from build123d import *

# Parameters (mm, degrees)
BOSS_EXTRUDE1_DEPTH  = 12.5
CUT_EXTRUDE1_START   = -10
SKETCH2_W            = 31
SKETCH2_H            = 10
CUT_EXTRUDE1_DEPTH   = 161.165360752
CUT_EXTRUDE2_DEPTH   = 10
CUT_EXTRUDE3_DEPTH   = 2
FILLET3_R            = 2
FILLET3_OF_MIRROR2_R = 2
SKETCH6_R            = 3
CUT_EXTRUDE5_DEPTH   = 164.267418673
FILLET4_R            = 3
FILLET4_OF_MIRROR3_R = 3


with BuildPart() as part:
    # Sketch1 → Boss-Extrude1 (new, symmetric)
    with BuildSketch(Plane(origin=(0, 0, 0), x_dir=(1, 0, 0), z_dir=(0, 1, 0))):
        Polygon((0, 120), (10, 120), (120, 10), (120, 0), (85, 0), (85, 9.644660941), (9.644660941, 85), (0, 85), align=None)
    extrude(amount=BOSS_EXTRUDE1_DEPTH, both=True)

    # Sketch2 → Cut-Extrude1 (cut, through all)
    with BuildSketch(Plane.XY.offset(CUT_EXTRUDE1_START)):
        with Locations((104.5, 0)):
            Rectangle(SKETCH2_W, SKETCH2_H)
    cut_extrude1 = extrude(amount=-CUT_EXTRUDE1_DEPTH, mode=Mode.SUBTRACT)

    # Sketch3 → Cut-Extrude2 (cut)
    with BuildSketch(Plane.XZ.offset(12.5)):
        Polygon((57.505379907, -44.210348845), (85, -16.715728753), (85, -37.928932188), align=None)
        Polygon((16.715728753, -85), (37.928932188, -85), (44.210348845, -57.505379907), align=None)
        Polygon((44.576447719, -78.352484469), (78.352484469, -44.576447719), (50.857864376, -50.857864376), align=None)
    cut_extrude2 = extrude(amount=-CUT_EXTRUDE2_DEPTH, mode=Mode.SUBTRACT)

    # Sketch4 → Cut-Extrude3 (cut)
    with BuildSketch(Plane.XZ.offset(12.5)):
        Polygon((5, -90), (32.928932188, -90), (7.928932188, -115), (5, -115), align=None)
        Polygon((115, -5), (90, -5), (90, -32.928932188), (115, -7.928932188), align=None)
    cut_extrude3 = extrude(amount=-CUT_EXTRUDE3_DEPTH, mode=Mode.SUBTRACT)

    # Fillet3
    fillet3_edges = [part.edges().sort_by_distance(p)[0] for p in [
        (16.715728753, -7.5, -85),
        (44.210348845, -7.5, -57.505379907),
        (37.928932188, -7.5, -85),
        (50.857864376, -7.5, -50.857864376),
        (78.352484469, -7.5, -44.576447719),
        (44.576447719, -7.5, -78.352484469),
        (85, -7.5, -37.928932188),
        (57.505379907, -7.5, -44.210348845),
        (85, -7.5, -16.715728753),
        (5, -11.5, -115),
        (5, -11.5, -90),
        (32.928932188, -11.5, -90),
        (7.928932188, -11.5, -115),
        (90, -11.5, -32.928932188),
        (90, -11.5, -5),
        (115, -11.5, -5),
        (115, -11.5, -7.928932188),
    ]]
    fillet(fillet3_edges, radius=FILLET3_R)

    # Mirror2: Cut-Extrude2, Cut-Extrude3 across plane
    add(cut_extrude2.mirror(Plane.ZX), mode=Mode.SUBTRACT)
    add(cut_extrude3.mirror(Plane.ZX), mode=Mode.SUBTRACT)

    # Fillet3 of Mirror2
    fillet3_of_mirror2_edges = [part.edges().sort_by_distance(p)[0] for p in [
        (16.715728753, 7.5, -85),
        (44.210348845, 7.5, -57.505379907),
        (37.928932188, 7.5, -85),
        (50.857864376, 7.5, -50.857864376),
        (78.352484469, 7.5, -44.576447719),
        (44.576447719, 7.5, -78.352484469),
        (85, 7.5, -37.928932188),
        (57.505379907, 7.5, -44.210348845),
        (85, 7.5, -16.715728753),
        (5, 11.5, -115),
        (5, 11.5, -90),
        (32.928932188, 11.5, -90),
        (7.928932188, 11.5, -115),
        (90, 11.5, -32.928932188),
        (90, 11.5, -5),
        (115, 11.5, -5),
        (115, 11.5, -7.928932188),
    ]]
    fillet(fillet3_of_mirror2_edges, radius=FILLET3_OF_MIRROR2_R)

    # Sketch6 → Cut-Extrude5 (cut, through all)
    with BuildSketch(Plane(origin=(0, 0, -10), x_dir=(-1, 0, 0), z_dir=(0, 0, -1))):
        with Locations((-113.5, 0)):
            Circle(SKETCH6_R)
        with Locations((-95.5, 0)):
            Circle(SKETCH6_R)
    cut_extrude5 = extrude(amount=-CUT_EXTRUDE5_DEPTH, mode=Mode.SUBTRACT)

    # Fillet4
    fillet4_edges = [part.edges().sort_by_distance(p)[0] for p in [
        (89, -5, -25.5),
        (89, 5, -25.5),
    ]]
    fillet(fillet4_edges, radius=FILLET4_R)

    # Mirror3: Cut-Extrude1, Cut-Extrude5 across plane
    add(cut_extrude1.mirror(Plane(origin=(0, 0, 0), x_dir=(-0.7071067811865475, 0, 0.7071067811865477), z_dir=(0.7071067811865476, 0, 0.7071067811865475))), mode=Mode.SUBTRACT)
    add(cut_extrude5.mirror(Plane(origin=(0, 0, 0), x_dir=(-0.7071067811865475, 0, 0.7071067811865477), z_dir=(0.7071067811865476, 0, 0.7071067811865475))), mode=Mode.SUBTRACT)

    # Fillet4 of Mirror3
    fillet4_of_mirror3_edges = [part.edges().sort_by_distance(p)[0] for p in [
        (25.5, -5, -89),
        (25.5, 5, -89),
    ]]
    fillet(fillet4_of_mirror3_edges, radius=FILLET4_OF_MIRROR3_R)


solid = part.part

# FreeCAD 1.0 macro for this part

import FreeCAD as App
import Part
import Sketcher

V = App.Vector


def edges_at(feature, points):
    """Names of the edges that pass closest to the given points."""
    edges = feature.Shape.Edges
    near = lambda p: min(range(len(edges)), key=lambda i: edges[i].distToShape(Part.Vertex(*p))[0])
    return sorted({f"Edge{near(p) + 1}" for p in points})


def add_polygon(sketch, points):
    """Adds a closed chain of lines whose ends are joined by coincident constraints."""
    first, n = sketch.GeometryCount, len(points)
    for a, b in zip(points, points[1:] + points[:1]):
        sketch.addGeometry(Part.LineSegment(App.Vector(*a, 0), App.Vector(*b, 0)), False)
    for i in range(n):
        sketch.addConstraint(Sketcher.Constraint("Coincident", first + i, 2, first + (i + 1) % n, 1))

doc = App.newDocument("Part")
params = doc.addObject("Spreadsheet::Sheet", "Params")
for row, (alias, value) in enumerate([
    ("sketch1_width", "10 mm"),
    ("sketch1_width2", "35 mm"),
    ("pad1_length", "25 mm"),
    ("sketch2_width", "31 mm"),
    ("sketch2_height", "10 mm"),
    ("pocket2_length", "10 mm"),
    ("sketch4_width", "25 mm"),
    ("pocket3_length", "2 mm"),
    ("fillet_radius", "2 mm"),
    ("fillet2_radius", "2 mm"),
    ("sketch5_diameter", "6 mm"),
    ("fillet3_radius", "3 mm"),
    ("fillet4_radius", "3 mm"),
], start=1):
    params.set(f"A{row}", alias)
    params.set(f"B{row}", "=" + value)
    params.setAlias(f"B{row}", alias)

body = doc.addObject("PartDesign::Body", "Body")

# Sketch on XZ plane
sketch1 = doc.addObject("Sketcher::SketchObject", "Sketch")
body.addObject(sketch1)
sketch1.AttachmentSupport = (doc.XZ_Plane, [""])
sketch1.MapMode = "FlatFace"
add_polygon(sketch1, [(10, -120), (0, -120), (0, -85), (9.644661, -85), (85, -9.644661), (85, 0), (120, 0), (120, -10)])  # lines 0-7
sketch1.addConstraint([
    Sketcher.Constraint("Horizontal", 0),
    Sketcher.Constraint("Vertical", 1),
    Sketcher.Constraint("Horizontal", 2),
    Sketcher.Constraint("Vertical", 4),
    Sketcher.Constraint("Horizontal", 5),
    Sketcher.Constraint("Vertical", 6),
    Sketcher.Constraint("PointOnObject", 0, 2, -2),
    Sketcher.Constraint("PointOnObject", 4, 2, -1),
    Sketcher.Constraint("Parallel", 3, 7),
    Sketcher.Constraint("Equal", 5, 1),
    Sketcher.Constraint("Equal", 2, 4),
    Sketcher.Constraint("Equal", 0, 6),
    Sketcher.Constraint("DistanceX", 0, 2, 0, 1, 10.0),
    Sketcher.Constraint("DistanceX", 5, 1, 5, 2, 35.0),
    Sketcher.Constraint("DistanceY", 0, 2, -1, 1, 120.0),
    Sketcher.Constraint("DistanceX", 2, 1, 2, 2, 9.644661),
])
sketch1.setExpression("Constraints[20]", "Params.sketch1_width")
sketch1.setExpression("Constraints[21]", "Params.sketch1_width2")
pad1 = doc.addObject("PartDesign::Pad", "Pad")
body.addObject(pad1)
pad1.Profile = sketch1
pad1.setExpression("Length", "Params.pad1_length")
pad1.Midplane = True

# Sketch on XY plane
sketch2 = doc.addObject("Sketcher::SketchObject", "Sketch001")
body.addObject(sketch2)
sketch2.AttachmentSupport = (doc.XY_Plane, [""])
sketch2.MapMode = "FlatFace"
sketch2.AttachmentOffset = App.Placement(V(0, 0, -10), App.Rotation())
add_polygon(sketch2, [(89, 5), (89, -5), (120, -5), (120, 5)])  # lines 0-3
sketch2.addConstraint([
    Sketcher.Constraint("Vertical", 0),
    Sketcher.Constraint("Horizontal", 1),
    Sketcher.Constraint("Vertical", 2),
    Sketcher.Constraint("Horizontal", 3),
    Sketcher.Constraint("DistanceX", 1, 1, 1, 2, 31.0),
    Sketcher.Constraint("DistanceY", 0, 2, 0, 1, 10.0),
    Sketcher.Constraint("DistanceX", -1, 1, 0, 2, 89.0),
    Sketcher.Constraint("DistanceY", 0, 2, -1, 1, 5.0),
])
sketch2.setExpression("Constraints[8]", "Params.sketch2_width")
sketch2.setExpression("Constraints[9]", "Params.sketch2_height")
pocket1 = doc.addObject("PartDesign::Pocket", "Pocket")
body.addObject(pocket1)
pocket1.Profile = sketch2
pocket1.Type = "ThroughAll"

# Sketch on XZ plane
sketch3 = doc.addObject("Sketcher::SketchObject", "Sketch002")
body.addObject(sketch3)
sketch3.AttachmentSupport = (doc.XZ_Plane, [""])
sketch3.MapMode = "FlatFace"
sketch3.AttachmentOffset = App.Placement(V(0, 0, 12.5), App.Rotation())
add_polygon(sketch3, [(85, -16.715729), (57.50538, -44.210349), (85, -37.928932)])  # lines 0-2
add_polygon(sketch3, [(16.715729, -85), (37.928932, -85), (44.210349, -57.50538)])  # lines 3-5
add_polygon(sketch3, [(44.576448, -78.352484), (78.352484, -44.576448), (50.857864, -50.857864)])  # lines 6-8
sketch3.addConstraint([
    Sketcher.Constraint("Vertical", 2),
    Sketcher.Constraint("Horizontal", 3),
    Sketcher.Constraint("Parallel", 0, 5),
    Sketcher.Constraint("Parallel", 5, 6),
    Sketcher.Constraint("Parallel", 1, 7),
    Sketcher.Constraint("Parallel", 4, 8),
    Sketcher.Constraint("Equal", 3, 2),
    Sketcher.Constraint("Equal", 1, 4),
    Sketcher.Constraint("Equal", 0, 5),
    Sketcher.Constraint("Equal", 4, 7),
    Sketcher.Constraint("DistanceX", -1, 1, 1, 2, 85.0),
    Sketcher.Constraint("DistanceY", 3, 2, -1, 1, 85.0),
    Sketcher.Constraint("DistanceY", 6, 2, 0, 2, 0.366099),
    Sketcher.Constraint("DistanceX", 4, 2, 8, 2, 0.366099),
    Sketcher.Constraint("Distance", 1, 28.20302),
    Sketcher.Constraint("Distance", 6, 47.766529),
    Sketcher.Constraint("DistanceY", 0, 2, -1, 1, 44.210349),
    Sketcher.Constraint("DistanceX", -1, 1, 4, 2, 44.210349),
])
pocket2 = doc.addObject("PartDesign::Pocket", "Pocket001")
body.addObject(pocket2)
pocket2.Profile = sketch3
pocket2.setExpression("Length", "Params.pocket2_length")

# Sketch on XZ plane
sketch4 = doc.addObject("Sketcher::SketchObject", "Sketch003")
body.addObject(sketch4)
sketch4.AttachmentSupport = (doc.XZ_Plane, [""])
sketch4.MapMode = "FlatFace"
sketch4.AttachmentOffset = App.Placement(V(0, 0, 12.5), App.Rotation())
add_polygon(sketch4, [(32.928932, -90), (5, -90), (5, -115), (7.928932, -115)])  # lines 0-3
add_polygon(sketch4, [(115, -5), (90, -5), (90, -32.928932), (115, -7.928932)])  # lines 4-7
sketch4.addConstraint([
    Sketcher.Constraint("Horizontal", 0),
    Sketcher.Constraint("Vertical", 1),
    Sketcher.Constraint("Horizontal", 2),
    Sketcher.Constraint("Horizontal", 4),
    Sketcher.Constraint("Vertical", 5),
    Sketcher.Constraint("Vertical", 7),
    Sketcher.Constraint("Parallel", 3, 6),
    Sketcher.Constraint("Equal", 4, 1),
    Sketcher.Constraint("Equal", 0, 5),
    Sketcher.Constraint("Equal", 2, 7),
    Sketcher.Constraint("DistanceX", 4, 2, 4, 1, 25.0),
    Sketcher.Constraint("DistanceX", -1, 1, 0, 2, 5.0),
    Sketcher.Constraint("DistanceY", 0, 2, -1, 1, 90.0),
    Sketcher.Constraint("DistanceX", -1, 1, 4, 2, 90.0),
    Sketcher.Constraint("DistanceY", 4, 2, -1, 1, 5.0),
    Sketcher.Constraint("DistanceX", 0, 2, 0, 1, 27.928932),
])
sketch4.setExpression("Constraints[18]", "Params.sketch4_width")
pocket3 = doc.addObject("PartDesign::Pocket", "Pocket002")
body.addObject(pocket3)
pocket3.Profile = sketch4
pocket3.setExpression("Length", "Params.pocket3_length")
doc.recompute()

fillet = doc.addObject("PartDesign::Fillet", "Fillet")
body.addObject(fillet)
fillet.Base = (pocket3, edges_at(pocket3, [
    (16.716, -7.5, -85),
    (44.21, -7.5, -57.505),
    (37.929, -7.5, -85),
    (50.858, -7.5, -50.858),
    (78.352, -7.5, -44.576),
    (44.576, -7.5, -78.352),
    (85, -7.5, -37.929),
    (57.505, -7.5, -44.21),
    (85, -7.5, -16.716),
    (5, -11.5, -115),
    (5, -11.5, -90),
    (32.929, -11.5, -90),
    (7.929, -11.5, -115),
    (90, -11.5, -32.929),
    (90, -11.5, -5),
    (115, -11.5, -5),
    (115, -11.5, -7.929),
]))
fillet.setExpression("Radius", "Params.fillet_radius")
doc.recompute()

mirrored = doc.addObject("PartDesign::Mirrored", "Mirrored")
body.addObject(mirrored)
mirrored.Originals = [pocket2, pocket3]
mirrored.MirrorPlane = (doc.XZ_Plane, [""])
body.Tip = mirrored
doc.recompute()

fillet2 = doc.addObject("PartDesign::Fillet", "Fillet001")
body.addObject(fillet2)
fillet2.Base = (mirrored, edges_at(mirrored, [
    (16.716, 7.5, -85),
    (44.21, 7.5, -57.505),
    (37.929, 7.5, -85),
    (50.858, 7.5, -50.858),
    (78.352, 7.5, -44.576),
    (44.576, 7.5, -78.352),
    (85, 7.5, -37.929),
    (57.505, 7.5, -44.21),
    (85, 7.5, -16.716),
    (5, 11.5, -115),
    (5, 11.5, -90),
    (32.929, 11.5, -90),
    (7.929, 11.5, -115),
    (90, 11.5, -32.929),
    (90, 11.5, -5),
    (115, 11.5, -5),
    (115, 11.5, -7.929),
]))
fillet2.setExpression("Radius", "Params.fillet2_radius")

# Sketch on XY plane
sketch5 = doc.addObject("Sketcher::SketchObject", "Sketch004")
body.addObject(sketch5)
sketch5.AttachmentSupport = (doc.XY_Plane, [""])
sketch5.MapMode = "FlatFace"
sketch5.AttachmentOffset = App.Placement(V(0, 0, -10), App.Rotation())
sketch5.addGeometry([
    Part.Circle(V(113.5, 0, 0), V(0, 0, 1), 3),
    Part.Circle(V(95.5, 0, 0), V(0, 0, 1), 3),
], False)
sketch5.addConstraint([
    Sketcher.Constraint("Equal", 0, 1),
    Sketcher.Constraint("PointOnObject", 0, 3, -1),
    Sketcher.Constraint("PointOnObject", 1, 3, -1),
    Sketcher.Constraint("Diameter", 0, 6.0),
    Sketcher.Constraint("DistanceX", 1, 3, 0, 3, 18.0),
    Sketcher.Constraint("DistanceX", -1, 1, 0, 3, 113.5),
])
sketch5.setExpression("Constraints[3]", "Params.sketch5_diameter")
pocket4 = doc.addObject("PartDesign::Pocket", "Pocket003")
body.addObject(pocket4)
pocket4.Profile = sketch5
pocket4.Type = "ThroughAll"
pocket4.Reversed = True
doc.recompute()

fillet3 = doc.addObject("PartDesign::Fillet", "Fillet002")
body.addObject(fillet3)
fillet3.Base = (pocket4, edges_at(pocket4, [(89, -5, -25.5), (89, 5, -25.5)]))
fillet3.setExpression("Radius", "Params.fillet3_radius")
doc.recompute()

datumplane = doc.addObject("PartDesign::Plane", "DatumPlane")
body.addObject(datumplane)
datumplane.Placement = App.Placement(V(0, 0, 0), App.Rotation(V(-0.707106781, 0, 0.707106781), V(0, -1, 0), V(0.707106781, 0, 0.707106781), "ZXY"))
mirrored2 = doc.addObject("PartDesign::Mirrored", "Mirrored001")
body.addObject(mirrored2)
mirrored2.Originals = [pocket1, pocket4]
mirrored2.MirrorPlane = (datumplane, [""])
body.Tip = mirrored2
doc.recompute()

fillet4 = doc.addObject("PartDesign::Fillet", "Fillet003")
body.addObject(fillet4)
fillet4.Base = (mirrored2, edges_at(mirrored2, [(25.5, -5, -89), (25.5, 5, -89)]))
fillet4.setExpression("Radius", "Params.fillet4_radius")

doc.recompute()
